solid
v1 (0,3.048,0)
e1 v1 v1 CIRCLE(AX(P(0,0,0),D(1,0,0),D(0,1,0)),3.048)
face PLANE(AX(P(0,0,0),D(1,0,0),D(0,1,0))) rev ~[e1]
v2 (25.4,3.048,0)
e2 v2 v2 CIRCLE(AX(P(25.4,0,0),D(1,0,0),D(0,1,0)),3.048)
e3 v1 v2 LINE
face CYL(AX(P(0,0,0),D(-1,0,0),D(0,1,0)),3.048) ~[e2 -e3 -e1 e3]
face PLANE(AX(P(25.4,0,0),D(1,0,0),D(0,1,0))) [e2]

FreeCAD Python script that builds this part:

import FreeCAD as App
import Part
import Sketcher

V = App.Vector
Q = App.Units.Quantity

doc = App.newDocument("Part")
body = doc.addObject("PartDesign::Body", "Body")

# Sketch on YZ plane
sketch1 = body.newObject("Sketcher::SketchObject", "Sketch")
sketch1.AttachmentSupport = (doc.getObject("YZ_Plane"), [""])
sketch1.MapMode = "FlatFace"
sketch1.addGeometry(Part.Circle(V(0, 0, 0), V(0, 0, 1), 3), False)
sketch1.addConstraint(Sketcher.Constraint("Coincident", 0, 3, -1, 1))
sketch1.addConstraint(Sketcher.Constraint("Diameter", 0, Q("0.24 in")))
pad1 = body.newObject("PartDesign::Pad", "Pad")
pad1.Profile = sketch1
pad1.Length = Q("1 in")

doc.recompute()
